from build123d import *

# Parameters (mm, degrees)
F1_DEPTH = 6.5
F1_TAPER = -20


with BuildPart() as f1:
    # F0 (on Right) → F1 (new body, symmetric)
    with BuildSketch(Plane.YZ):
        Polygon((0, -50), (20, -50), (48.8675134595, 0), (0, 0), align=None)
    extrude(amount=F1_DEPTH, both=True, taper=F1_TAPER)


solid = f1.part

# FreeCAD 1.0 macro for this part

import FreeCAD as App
import Part
import Sketcher
from FreeCAD import Vector
Q = App.Units.Quantity


def add_polygon(sketch, points):
    """Adds a closed chain of lines whose ends are joined by coincident constraints."""
    first, n = sketch.GeometryCount, len(points)
    for a, b in zip(points, points[1:] + points[:1]):
        sketch.addGeometry(Part.LineSegment(App.Vector(*a, 0), App.Vector(*b, 0)), False)
    for i in range(n):
        sketch.addConstraint(Sketcher.Constraint("Coincident", first + i, 2, first + (i + 1) % n, 1))

doc = App.newDocument("Part")
params = doc.addObject("Spreadsheet::Sheet", "Params")
for row, (alias, value) in enumerate([
    ("sketch1_width", "20 mm"),
    ("sketch1_height", "50 mm"),
    ("pad1_length", "13 mm"),
    ("pad1_taper", "20 deg"),
], start=1):
    params.set(f"A{row}", alias)
    params.set(f"B{row}", "=" + value)
    params.setAlias(f"B{row}", alias)

body = doc.addObject("PartDesign::Body", "Body")

sketch1 = body.newObject("Sketcher::SketchObject", "Sketch")
sketch1.AttachmentSupport = (doc.getObject("YZ_Plane"), [""])
sketch1.MapMode = "FlatFace"
add_polygon(sketch1, [(0, -50), (20, -50), (49, 0), (0, 0)])
sketch1.addConstraint(Sketcher.Constraint("Horizontal", 0))
sketch1.addConstraint(Sketcher.Constraint("Horizontal", 2))
sketch1.addConstraint(Sketcher.Constraint("Vertical", 3))
sketch1.addConstraint(Sketcher.Constraint("Coincident", 2, 2, -1, 1))
sketch1.addConstraint(Sketcher.Constraint("DistanceX", 0, 1, 0, 2, Q("20 mm")))
sketch1.addConstraint(Sketcher.Constraint("DistanceY", 3, 2, 3, 1, Q("50 mm")))
sketch1.addConstraint(Sketcher.Constraint("Angle", 1, Q("60 deg")))
sketch1.setExpression("Constraints[8]", "Params.sketch1_width")
sketch1.setExpression("Constraints[9]", "Params.sketch1_height")
pad1 = body.newObject("PartDesign::Pad", "Pad")
pad1.Profile = sketch1
pad1.setExpression("Length", "Params.pad1_length")
pad1.Midplane = True
pad1.setExpression("TaperAngle", "Params.pad1_taper")

doc.recompute()
